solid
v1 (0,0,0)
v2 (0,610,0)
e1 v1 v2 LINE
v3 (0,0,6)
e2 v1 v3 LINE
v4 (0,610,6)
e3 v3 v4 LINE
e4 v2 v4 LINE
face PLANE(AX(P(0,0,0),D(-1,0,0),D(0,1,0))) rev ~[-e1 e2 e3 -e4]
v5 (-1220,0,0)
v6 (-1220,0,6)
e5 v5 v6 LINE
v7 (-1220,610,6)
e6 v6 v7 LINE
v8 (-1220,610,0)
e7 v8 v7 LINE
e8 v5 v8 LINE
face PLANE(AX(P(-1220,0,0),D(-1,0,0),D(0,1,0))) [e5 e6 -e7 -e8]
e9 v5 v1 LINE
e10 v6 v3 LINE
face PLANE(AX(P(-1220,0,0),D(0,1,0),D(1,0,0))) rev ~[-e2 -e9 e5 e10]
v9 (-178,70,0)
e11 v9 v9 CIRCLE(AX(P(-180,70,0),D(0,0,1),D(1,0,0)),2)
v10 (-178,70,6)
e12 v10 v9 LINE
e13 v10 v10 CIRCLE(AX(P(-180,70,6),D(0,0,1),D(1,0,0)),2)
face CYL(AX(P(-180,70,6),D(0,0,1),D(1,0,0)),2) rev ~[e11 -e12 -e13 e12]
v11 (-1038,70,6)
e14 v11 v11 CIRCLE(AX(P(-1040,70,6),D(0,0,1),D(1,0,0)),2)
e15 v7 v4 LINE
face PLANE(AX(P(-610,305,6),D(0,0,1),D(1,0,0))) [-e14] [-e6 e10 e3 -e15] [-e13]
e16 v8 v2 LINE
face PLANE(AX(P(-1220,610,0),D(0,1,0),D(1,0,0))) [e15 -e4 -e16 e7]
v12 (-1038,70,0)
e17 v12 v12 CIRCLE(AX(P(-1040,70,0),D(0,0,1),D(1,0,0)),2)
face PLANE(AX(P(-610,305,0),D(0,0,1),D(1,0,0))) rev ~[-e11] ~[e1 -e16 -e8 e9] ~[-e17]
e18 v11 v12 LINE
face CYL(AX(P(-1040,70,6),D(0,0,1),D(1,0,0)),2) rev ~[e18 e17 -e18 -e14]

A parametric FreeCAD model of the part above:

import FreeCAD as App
import Part
import Sketcher
Q = App.Units.Quantity

doc = App.newDocument("Part")
body = doc.addObject("PartDesign::Body", "Body")

# Sketch on XY plane
sketch1 = doc.addObject("Sketcher::SketchObject", "Sketch")
body.addObject(sketch1)
sketch1.AttachmentSupport = (doc.XY_Plane, [""])
sketch1.MapMode = "FlatFace"
sketch1.addGeometry(Part.LineSegment(App.Vector(-1220, 610, 0), App.Vector(-1220, 0, 0)), False)
sketch1.addGeometry(Part.LineSegment(App.Vector(-1220, 0, 0), App.Vector(0, 0, 0)), False)
sketch1.addGeometry(Part.LineSegment(App.Vector(0, 0, 0), App.Vector(0, 610, 0)), False)
sketch1.addGeometry(Part.LineSegment(App.Vector(0, 610, 0), App.Vector(-1220, 610, 0)), False)
sketch1.addConstraint(Sketcher.Constraint("Coincident", 0, 2, 1, 1))
sketch1.addConstraint(Sketcher.Constraint("Coincident", 1, 2, 2, 1))
sketch1.addConstraint(Sketcher.Constraint("Coincident", 2, 2, 3, 1))
sketch1.addConstraint(Sketcher.Constraint("Coincident", 3, 2, 0, 1))
sketch1.addConstraint(Sketcher.Constraint("Vertical", 0))
sketch1.addConstraint(Sketcher.Constraint("Horizontal", 1))
sketch1.addConstraint(Sketcher.Constraint("Vertical", 2))
sketch1.addConstraint(Sketcher.Constraint("Horizontal", 3))
sketch1.addConstraint(Sketcher.Constraint("Coincident", 1, 2, -1, 1))
sketch1.addConstraint(Sketcher.Constraint("DistanceX", 1, 1, 1, 2, Q("1220 mm")))
sketch1.addConstraint(Sketcher.Constraint("DistanceY", 0, 2, 0, 1, Q("610 mm")))
pad1 = doc.addObject("PartDesign::Pad", "Pad")
body.addObject(pad1)
pad1.Profile = sketch1
pad1.Length = 6

# Sketch on XY plane
sketch2 = doc.addObject("Sketcher::SketchObject", "Sketch001")
body.addObject(sketch2)
sketch2.AttachmentSupport = (doc.XY_Plane, [""])
sketch2.MapMode = "FlatFace"
sketch2.AttachmentOffset = App.Placement(App.Vector(0, 0, 6), App.Rotation())
sketch2.addGeometry(Part.Circle(App.Vector(-1040, 70, 0), App.Vector(0, 0, 1), 2), False)
sketch2.addGeometry(Part.Circle(App.Vector(-180, 70, 0), App.Vector(0, 0, 1), 2), False)
sketch2.addConstraint(Sketcher.Constraint("Equal", 0, 1))
sketch2.addConstraint(Sketcher.Constraint("Horizontal", 0, 3, 1, 3))
sketch2.addConstraint(Sketcher.Constraint("Diameter", 0, Q("4 mm")))
sketch2.addConstraint(Sketcher.Constraint("DistanceX", 0, 3, -1, 1, Q("1040 mm")))
sketch2.addConstraint(Sketcher.Constraint("DistanceY", -1, 1, 0, 3, Q("70 mm")))
sketch2.addConstraint(Sketcher.Constraint("DistanceX", 1, 3, -1, 1, Q("180 mm")))
pocket1 = doc.addObject("PartDesign::Pocket", "Pocket")
body.addObject(pocket1)
pocket1.Profile = sketch2
pocket1.Length = 6

doc.recompute()
